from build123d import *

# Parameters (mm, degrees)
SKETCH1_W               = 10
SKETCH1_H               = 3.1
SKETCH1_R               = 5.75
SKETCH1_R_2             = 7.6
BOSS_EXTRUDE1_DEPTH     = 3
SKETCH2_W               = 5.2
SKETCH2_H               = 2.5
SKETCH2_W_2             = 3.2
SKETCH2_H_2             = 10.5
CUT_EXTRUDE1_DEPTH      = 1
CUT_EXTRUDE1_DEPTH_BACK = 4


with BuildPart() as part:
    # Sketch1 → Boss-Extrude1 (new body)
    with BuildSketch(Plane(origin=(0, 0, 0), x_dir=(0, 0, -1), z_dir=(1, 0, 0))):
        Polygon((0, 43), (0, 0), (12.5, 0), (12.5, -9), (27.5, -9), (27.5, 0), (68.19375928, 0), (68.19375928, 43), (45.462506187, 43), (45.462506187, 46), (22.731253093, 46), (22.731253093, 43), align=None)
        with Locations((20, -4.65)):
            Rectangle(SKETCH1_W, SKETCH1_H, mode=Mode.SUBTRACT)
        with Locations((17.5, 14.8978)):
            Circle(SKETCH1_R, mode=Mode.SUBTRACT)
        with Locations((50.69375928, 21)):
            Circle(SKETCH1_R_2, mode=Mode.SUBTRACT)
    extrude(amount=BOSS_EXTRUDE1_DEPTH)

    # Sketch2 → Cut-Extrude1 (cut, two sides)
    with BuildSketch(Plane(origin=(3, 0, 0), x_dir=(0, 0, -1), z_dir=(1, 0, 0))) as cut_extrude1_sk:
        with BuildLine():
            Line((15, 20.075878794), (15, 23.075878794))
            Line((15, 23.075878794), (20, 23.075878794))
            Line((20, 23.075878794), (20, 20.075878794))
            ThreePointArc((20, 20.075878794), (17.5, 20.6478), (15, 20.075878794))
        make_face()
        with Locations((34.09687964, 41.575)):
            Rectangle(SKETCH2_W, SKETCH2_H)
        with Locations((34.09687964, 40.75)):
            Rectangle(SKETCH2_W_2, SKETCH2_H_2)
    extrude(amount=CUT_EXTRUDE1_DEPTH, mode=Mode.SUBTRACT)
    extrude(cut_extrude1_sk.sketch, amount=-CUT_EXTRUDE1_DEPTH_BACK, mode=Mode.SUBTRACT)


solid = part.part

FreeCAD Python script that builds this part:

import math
import FreeCAD as App
import Part
import Sketcher

V = App.Vector
Q = App.Units.Quantity

doc = App.newDocument("Part")
body = doc.addObject("PartDesign::Body", "Body")

sketch1 = body.newObject("Sketcher::SketchObject", "Sketch")
sketch1.AttachmentSupport = (doc.getObject("YZ_Plane"), [""])
sketch1.MapMode = "FlatFace"
sketch1.addGeometry(Part.LineSegment(V(43, 0, 0), V(0, 0, 0)), False)
sketch1.addGeometry(Part.LineSegment(V(0, 0, 0), V(0, -12.5, 0)), False)
sketch1.addGeometry(Part.LineSegment(V(0, -12.5, 0), V(-9, -12.5, 0)), False)
sketch1.addGeometry(Part.LineSegment(V(-9, -12.5, 0), V(-9, -27.5, 0)), False)
sketch1.addGeometry(Part.LineSegment(V(-9, -27.5, 0), V(0, -27.5, 0)), False)
sketch1.addGeometry(Part.LineSegment(V(0, -27.5, 0), V(0, -68.2, 0)), False)
sketch1.addGeometry(Part.LineSegment(V(0, -68.2, 0), V(43, -68.2, 0)), False)
sketch1.addGeometry(Part.LineSegment(V(43, -68.2, 0), V(43, -45.5, 0)), False)
sketch1.addGeometry(Part.LineSegment(V(43, -45.5, 0), V(46, -45.5, 0)), False)
sketch1.addGeometry(Part.LineSegment(V(46, -45.5, 0), V(46, -22.7, 0)), False)
sketch1.addGeometry(Part.LineSegment(V(46, -22.7, 0), V(43, -22.7, 0)), False)
sketch1.addGeometry(Part.LineSegment(V(43, -22.7, 0), V(43, 0, 0)), False)
sketch1.addGeometry(Part.LineSegment(V(-6.2, -25, 0), V(-6.2, -15, 0)), False)
sketch1.addGeometry(Part.LineSegment(V(-6.2, -15, 0), V(-3.1, -15, 0)), False)
sketch1.addGeometry(Part.LineSegment(V(-3.1, -15, 0), V(-3.1, -25, 0)), False)
sketch1.addGeometry(Part.LineSegment(V(-3.1, -25, 0), V(-6.2, -25, 0)), False)
sketch1.addGeometry(Part.Circle(V(14.9, -17.5, 0), V(0, 0, 1), 5.8), False)
sketch1.addGeometry(Part.Circle(V(21, -50.7, 0), V(0, 0, 1), 7.6), False)
sketch1.addConstraint(Sketcher.Constraint("Coincident", 0, 2, 1, 1))
sketch1.addConstraint(Sketcher.Constraint("Coincident", 1, 2, 2, 1))
sketch1.addConstraint(Sketcher.Constraint("Coincident", 2, 2, 3, 1))
sketch1.addConstraint(Sketcher.Constraint("Coincident", 3, 2, 4, 1))
sketch1.addConstraint(Sketcher.Constraint("Coincident", 4, 2, 5, 1))
sketch1.addConstraint(Sketcher.Constraint("Coincident", 5, 2, 6, 1))
sketch1.addConstraint(Sketcher.Constraint("Coincident", 6, 2, 7, 1))
sketch1.addConstraint(Sketcher.Constraint("Coincident", 7, 2, 8, 1))
sketch1.addConstraint(Sketcher.Constraint("Coincident", 8, 2, 9, 1))
sketch1.addConstraint(Sketcher.Constraint("Coincident", 9, 2, 10, 1))
sketch1.addConstraint(Sketcher.Constraint("Coincident", 10, 2, 11, 1))
sketch1.addConstraint(Sketcher.Constraint("Coincident", 11, 2, 0, 1))
sketch1.addConstraint(Sketcher.Constraint("Coincident", 12, 2, 13, 1))
sketch1.addConstraint(Sketcher.Constraint("Coincident", 13, 2, 14, 1))
sketch1.addConstraint(Sketcher.Constraint("Coincident", 14, 2, 15, 1))
sketch1.addConstraint(Sketcher.Constraint("Coincident", 15, 2, 12, 1))
sketch1.addConstraint(Sketcher.Constraint("Horizontal", 0))
sketch1.addConstraint(Sketcher.Constraint("Vertical", 1))
sketch1.addConstraint(Sketcher.Constraint("Horizontal", 2))
sketch1.addConstraint(Sketcher.Constraint("Vertical", 3))
sketch1.addConstraint(Sketcher.Constraint("Horizontal", 4))
sketch1.addConstraint(Sketcher.Constraint("Vertical", 5))
sketch1.addConstraint(Sketcher.Constraint("Horizontal", 6))
sketch1.addConstraint(Sketcher.Constraint("Vertical", 7))
sketch1.addConstraint(Sketcher.Constraint("Horizontal", 8))
sketch1.addConstraint(Sketcher.Constraint("Vertical", 9))
sketch1.addConstraint(Sketcher.Constraint("Horizontal", 10))
sketch1.addConstraint(Sketcher.Constraint("Vertical", 11))
sketch1.addConstraint(Sketcher.Constraint("Vertical", 12))
sketch1.addConstraint(Sketcher.Constraint("Horizontal", 13))
sketch1.addConstraint(Sketcher.Constraint("Vertical", 14))
sketch1.addConstraint(Sketcher.Constraint("Horizontal", 15))
sketch1.addConstraint(Sketcher.Constraint("Coincident", 0, 2, -1, 1))
sketch1.addConstraint(Sketcher.Constraint("PointOnObject", 4, 2, -2))
sketch1.addConstraint(Sketcher.Constraint("Vertical", 7, 2, 10, 2))
sketch1.addConstraint(Sketcher.Constraint("Equal", 7, 9))
sketch1.addConstraint(Sketcher.Constraint("Equal", 9, 11))
sketch1.addConstraint(Sketcher.Constraint("Diameter", 16, Q("11.5 mm")))
sketch1.addConstraint(Sketcher.Constraint("Diameter", 17, Q("15.2 mm")))
sketch1.addConstraint(Sketcher.Constraint("DistanceX", 0, 2, 0, 1, Q("43 mm")))
sketch1.addConstraint(Sketcher.Constraint("DistanceX", 2, 2, 2, 1, Q("9 mm")))
sketch1.addConstraint(Sketcher.Constraint("DistanceX", 8, 1, 8, 2, Q("3 mm")))
sketch1.addConstraint(Sketcher.Constraint("DistanceY", 3, 2, 3, 1, Q("15 mm")))
sketch1.addConstraint(Sketcher.Constraint("DistanceY", 12, 1, 12, 2, Q("10 mm")))
sketch1.addConstraint(Sketcher.Constraint("DistanceX", 13, 1, 13, 2, Q("3.1 mm")))
sketch1.addConstraint(Sketcher.Constraint("DistanceY", 1, 2, 1, 1, Q("12.5 mm")))
sketch1.addConstraint(Sketcher.Constraint("DistanceX", -1, 1, 17, 3, Q("21 mm")))
sketch1.addConstraint(Sketcher.Constraint("DistanceY", 12, 2, -1, 1, Q("15 mm")))
sketch1.addConstraint(Sketcher.Constraint("DistanceY", 16, 3, 1, 2, Q("5 mm")))
sketch1.addConstraint(Sketcher.Constraint("DistanceX", 12, 2, -1, 1, Q("6.2 mm")))
sketch1.addConstraint(Sketcher.Constraint("DistanceY", 5, 2, 17, 3, Q("17.5 mm")))
sketch1.addConstraint(Sketcher.Constraint("DistanceY", 5, 2, 5, 1, Q("40.693759 mm")))
sketch1.addConstraint(Sketcher.Constraint("DistanceX", -1, 1, 16, 3, Q("14.8978 mm")))
pad1 = body.newObject("PartDesign::Pad", "Pad")
pad1.Profile = sketch1
pad1.Length = 3

sketch2 = body.newObject("Sketcher::SketchObject", "Sketch001")
sketch2.AttachmentSupport = (doc.getObject("YZ_Plane"), [""])
sketch2.MapMode = "FlatFace"
sketch2.AttachmentOffset = App.Placement(V(0, 0, 3), App.Rotation())
sketch2.addGeometry(Part.LineSegment(V(23.1, -15, 0), V(20.1, -15, 0)), False)
sketch2.addGeometry(Part.ArcOfCircle(Part.Circle(V(14.9, -17.5, 0), V(0, 0, 1), 5.7), math.radians(-26), math.radians(26)), False)
sketch2.addGeometry(Part.LineSegment(V(20.1, -20, 0), V(23.1, -20, 0)), False)
sketch2.addGeometry(Part.LineSegment(V(23.1, -20, 0), V(23.1, -15, 0)), False)
sketch2.addGeometry(Part.LineSegment(V(42.8, -31.5, 0), V(40.3, -31.5, 0)), False)
sketch2.addGeometry(Part.LineSegment(V(40.3, -31.5, 0), V(40.3, -32.5, 0)), False)
sketch2.addGeometry(Part.LineSegment(V(40.3, -32.5, 0), V(35.5, -32.5, 0)), False)
sketch2.addGeometry(Part.LineSegment(V(35.5, -32.5, 0), V(35.5, -35.7, 0)), False)
sketch2.addGeometry(Part.LineSegment(V(35.5, -35.7, 0), V(40.3, -35.7, 0)), False)
sketch2.addGeometry(Part.LineSegment(V(40.3, -35.7, 0), V(40.3, -36.7, 0)), False)
sketch2.addGeometry(Part.LineSegment(V(40.3, -36.7, 0), V(42.8, -36.7, 0)), False)
sketch2.addGeometry(Part.LineSegment(V(42.8, -36.7, 0), V(42.8, -35.7, 0)), False)
sketch2.addGeometry(Part.LineSegment(V(42.8, -35.7, 0), V(46, -35.7, 0)), False)
sketch2.addGeometry(Part.LineSegment(V(46, -35.7, 0), V(46, -32.5, 0)), False)
sketch2.addGeometry(Part.LineSegment(V(46, -32.5, 0), V(42.8, -32.5, 0)), False)
sketch2.addGeometry(Part.LineSegment(V(42.8, -32.5, 0), V(42.8, -31.5, 0)), False)
sketch2.addConstraint(Sketcher.Constraint("Coincident", 0, 2, 1, 2))
sketch2.addConstraint(Sketcher.Constraint("Coincident", 1, 1, 2, 1))
sketch2.addConstraint(Sketcher.Constraint("Coincident", 2, 2, 3, 1))
sketch2.addConstraint(Sketcher.Constraint("Coincident", 3, 2, 0, 1))
sketch2.addConstraint(Sketcher.Constraint("Coincident", 4, 2, 5, 1))
sketch2.addConstraint(Sketcher.Constraint("Coincident", 5, 2, 6, 1))
sketch2.addConstraint(Sketcher.Constraint("Coincident", 6, 2, 7, 1))
sketch2.addConstraint(Sketcher.Constraint("Coincident", 7, 2, 8, 1))
sketch2.addConstraint(Sketcher.Constraint("Coincident", 8, 2, 9, 1))
sketch2.addConstraint(Sketcher.Constraint("Coincident", 9, 2, 10, 1))
sketch2.addConstraint(Sketcher.Constraint("Coincident", 10, 2, 11, 1))
sketch2.addConstraint(Sketcher.Constraint("Coincident", 11, 2, 12, 1))
sketch2.addConstraint(Sketcher.Constraint("Coincident", 12, 2, 13, 1))
sketch2.addConstraint(Sketcher.Constraint("Coincident", 13, 2, 14, 1))
sketch2.addConstraint(Sketcher.Constraint("Coincident", 14, 2, 15, 1))
sketch2.addConstraint(Sketcher.Constraint("Coincident", 15, 2, 4, 1))
sketch2.addConstraint(Sketcher.Constraint("Horizontal", 0))
sketch2.addConstraint(Sketcher.Constraint("Horizontal", 2))
sketch2.addConstraint(Sketcher.Constraint("Vertical", 3))
sketch2.addConstraint(Sketcher.Constraint("Horizontal", 4))
sketch2.addConstraint(Sketcher.Constraint("Vertical", 5))
sketch2.addConstraint(Sketcher.Constraint("Horizontal", 6))
sketch2.addConstraint(Sketcher.Constraint("Vertical", 7))
sketch2.addConstraint(Sketcher.Constraint("Horizontal", 8))
sketch2.addConstraint(Sketcher.Constraint("Vertical", 9))
sketch2.addConstraint(Sketcher.Constraint("Horizontal", 10))
sketch2.addConstraint(Sketcher.Constraint("Vertical", 11))
sketch2.addConstraint(Sketcher.Constraint("Horizontal", 12))
sketch2.addConstraint(Sketcher.Constraint("Vertical", 13))
sketch2.addConstraint(Sketcher.Constraint("Horizontal", 14))
sketch2.addConstraint(Sketcher.Constraint("Vertical", 15))
sketch2.addConstraint(Sketcher.Constraint("Horizontal", 8, 2, 11, 2))
sketch2.addConstraint(Sketcher.Constraint("Horizontal", 6, 2, 13, 2))
sketch2.addConstraint(Sketcher.Constraint("Vertical", 0, 2, 1, 1))
sketch2.addConstraint(Sketcher.Constraint("Vertical", 5, 2, 8, 2))
sketch2.addConstraint(Sketcher.Constraint("Vertical", 11, 2, 14, 2))
sketch2.addConstraint(Sketcher.Constraint("Equal", 5, 9))
sketch2.addConstraint(Sketcher.Constraint("DistanceX", 0, 2, 0, 1, Q("3 mm")))
sketch2.addConstraint(Sketcher.Constraint("DistanceY", 3, 1, 3, 2, Q("5 mm")))
sketch2.addConstraint(Sketcher.Constraint("DistanceY", 5, 2, 5, 1, Q("1 mm")))
sketch2.addConstraint(Sketcher.Constraint("Radius", 1, Q("5.75 mm")))
sketch2.addConstraint(Sketcher.Constraint("DistanceX", 4, 2, 4, 1, Q("2.5 mm")))
sketch2.addConstraint(Sketcher.Constraint("DistanceY", 7, 2, 7, 1, Q("3.2 mm")))
sketch2.addConstraint(Sketcher.Constraint("DistanceY", 0, 2, -1, 1, Q("15 mm")))
sketch2.addConstraint(Sketcher.Constraint("DistanceX", -1, 1, 12, 2, Q("46 mm")))
sketch2.addConstraint(Sketcher.Constraint("DistanceX", -1, 1, 6, 2, Q("35.5 mm")))
sketch2.addConstraint(Sketcher.Constraint("DistanceX", 6, 2, 6, 1, Q("4.825 mm")))
sketch2.addConstraint(Sketcher.Constraint("DistanceX", -1, 1, 1, 3, Q("14.8978 mm")))
sketch2.addConstraint(Sketcher.Constraint("DistanceY", 4, 2, -1, 1, Q("31.49688 mm")))
pocket1 = body.newObject("PartDesign::Pocket", "Pocket")
pocket1.Profile = sketch2
pocket1.Type = "ThroughAll"
pocket1.Midplane = True

doc.recompute()
